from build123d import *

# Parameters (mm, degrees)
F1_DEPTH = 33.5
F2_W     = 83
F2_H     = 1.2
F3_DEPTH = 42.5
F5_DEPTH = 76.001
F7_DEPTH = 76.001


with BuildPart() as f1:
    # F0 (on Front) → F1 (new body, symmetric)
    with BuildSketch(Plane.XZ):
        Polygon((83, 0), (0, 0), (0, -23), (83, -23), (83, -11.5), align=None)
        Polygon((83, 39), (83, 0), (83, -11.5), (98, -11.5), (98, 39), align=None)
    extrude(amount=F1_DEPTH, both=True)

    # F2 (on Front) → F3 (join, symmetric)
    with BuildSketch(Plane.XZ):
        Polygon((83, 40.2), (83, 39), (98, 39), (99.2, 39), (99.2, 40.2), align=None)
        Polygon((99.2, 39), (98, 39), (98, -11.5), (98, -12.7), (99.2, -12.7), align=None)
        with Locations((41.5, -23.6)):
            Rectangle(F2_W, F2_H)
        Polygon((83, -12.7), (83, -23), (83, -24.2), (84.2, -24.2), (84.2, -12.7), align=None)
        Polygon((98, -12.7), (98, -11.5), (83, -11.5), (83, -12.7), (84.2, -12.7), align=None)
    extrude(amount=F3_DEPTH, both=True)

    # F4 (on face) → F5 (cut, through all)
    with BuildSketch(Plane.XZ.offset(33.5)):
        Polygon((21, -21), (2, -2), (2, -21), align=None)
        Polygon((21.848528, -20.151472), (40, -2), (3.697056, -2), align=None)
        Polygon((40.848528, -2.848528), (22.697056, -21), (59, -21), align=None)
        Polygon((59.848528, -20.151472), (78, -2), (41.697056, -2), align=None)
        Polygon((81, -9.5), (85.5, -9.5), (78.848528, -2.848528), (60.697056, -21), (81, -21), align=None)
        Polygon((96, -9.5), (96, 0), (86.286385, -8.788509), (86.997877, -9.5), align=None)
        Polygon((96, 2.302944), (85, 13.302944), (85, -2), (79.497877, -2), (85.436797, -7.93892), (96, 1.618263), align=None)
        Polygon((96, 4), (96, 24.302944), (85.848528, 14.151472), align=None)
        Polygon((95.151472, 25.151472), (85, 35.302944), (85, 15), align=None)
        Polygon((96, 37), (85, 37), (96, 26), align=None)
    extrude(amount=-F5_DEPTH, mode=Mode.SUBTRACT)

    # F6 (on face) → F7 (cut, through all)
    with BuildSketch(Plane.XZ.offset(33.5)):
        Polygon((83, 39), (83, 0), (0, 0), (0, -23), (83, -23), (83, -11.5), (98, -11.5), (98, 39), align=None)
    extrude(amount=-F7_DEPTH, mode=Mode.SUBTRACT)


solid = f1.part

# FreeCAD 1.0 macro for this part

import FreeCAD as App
import Part
import Sketcher
from FreeCAD import Vector
Q = App.Units.Quantity


def add_polygon(sketch, points):
    """Adds a closed chain of lines whose ends are joined by coincident constraints."""
    first, n = sketch.GeometryCount, len(points)
    for a, b in zip(points, points[1:] + points[:1]):
        sketch.addGeometry(Part.LineSegment(App.Vector(*a, 0), App.Vector(*b, 0)), False)
    for i in range(n):
        sketch.addConstraint(Sketcher.Constraint("Coincident", first + i, 2, first + (i + 1) % n, 1))

doc = App.newDocument("Part")
body = doc.addObject("PartDesign::Body", "Body")

# Sketch on XZ plane
sketch1 = body.newObject("Sketcher::SketchObject", "Sketch")
sketch1.AttachmentSupport = (doc.getObject("XZ_Plane"), [""])
sketch1.MapMode = "FlatFace"
add_polygon(sketch1, [(83, 0), (0, 0), (0, -23), (83, -23), (83, -11.5), (98, -11.5), (98, 39), (83, 39)])  # lines 0-7
sketch1.addConstraint(Sketcher.Constraint("Horizontal", 0))
sketch1.addConstraint(Sketcher.Constraint("Vertical", 1))
sketch1.addConstraint(Sketcher.Constraint("Horizontal", 2))
sketch1.addConstraint(Sketcher.Constraint("Vertical", 3))
sketch1.addConstraint(Sketcher.Constraint("Horizontal", 4))
sketch1.addConstraint(Sketcher.Constraint("Vertical", 5))
sketch1.addConstraint(Sketcher.Constraint("Horizontal", 6))
sketch1.addConstraint(Sketcher.Constraint("Vertical", 7))
sketch1.addConstraint(Sketcher.Constraint("Coincident", 0, 2, -1, 1))
sketch1.addConstraint(Sketcher.Constraint("Vertical", 3, 2, 6, 2))
sketch1.addConstraint(Sketcher.Constraint("DistanceX", 0, 2, 0, 1, Q("83 mm")))
sketch1.addConstraint(Sketcher.Constraint("DistanceX", 4, 1, 4, 2, Q("15 mm")))
sketch1.addConstraint(Sketcher.Constraint("DistanceY", 1, 2, 1, 1, Q("23 mm")))
sketch1.addConstraint(Sketcher.Constraint("DistanceY", 7, 2, 7, 1, Q("39 mm")))
sketch1.addConstraint(Sketcher.Constraint("DistanceY", 3, 1, 3, 2, Q("11.5 mm")))
pad1 = body.newObject("PartDesign::Pad", "Pad")
pad1.Profile = sketch1
pad1.Length = 67
pad1.Midplane = True

# Sketch on XZ plane
sketch2 = body.newObject("Sketcher::SketchObject", "Sketch001")
sketch2.AttachmentSupport = (doc.getObject("XZ_Plane"), [""])
sketch2.MapMode = "FlatFace"
add_polygon(sketch2, [(83, 40.2), (83, 39), (98, 39), (98, -11.5), (83, -11.5), (83, -23), (0, -23), (0, -24.2), (84.2, -24.2), (84.2, -12.7), (99.2, -12.7), (99.2, 40.2)])  # lines 0-11
sketch2.addConstraint(Sketcher.Constraint("Vertical", 0))
sketch2.addConstraint(Sketcher.Constraint("Horizontal", 1))
sketch2.addConstraint(Sketcher.Constraint("Vertical", 2))
sketch2.addConstraint(Sketcher.Constraint("Horizontal", 3))
sketch2.addConstraint(Sketcher.Constraint("Vertical", 4))
sketch2.addConstraint(Sketcher.Constraint("Horizontal", 5))
sketch2.addConstraint(Sketcher.Constraint("Vertical", 6))
sketch2.addConstraint(Sketcher.Constraint("Horizontal", 7))
sketch2.addConstraint(Sketcher.Constraint("Vertical", 8))
sketch2.addConstraint(Sketcher.Constraint("Horizontal", 9))
sketch2.addConstraint(Sketcher.Constraint("Vertical", 10))
sketch2.addConstraint(Sketcher.Constraint("Horizontal", 11))
sketch2.addConstraint(Sketcher.Constraint("PointOnObject", 5, 2, -2))
sketch2.addConstraint(Sketcher.Constraint("Vertical", 0, 2, 3, 2))
sketch2.addConstraint(Sketcher.Constraint("Equal", 3, 9))
sketch2.addConstraint(Sketcher.Constraint("Equal", 0, 6))
sketch2.addConstraint(Sketcher.Constraint("Equal", 4, 8))
sketch2.addConstraint(Sketcher.Constraint("DistanceX", 1, 1, 1, 2, Q("15 mm")))
sketch2.addConstraint(Sketcher.Constraint("DistanceX", 5, 2, 5, 1, Q("83 mm")))
sketch2.addConstraint(Sketcher.Constraint("DistanceX", 7, 1, 7, 2, Q("84.2 mm")))
sketch2.addConstraint(Sketcher.Constraint("DistanceY", 0, 2, 0, 1, Q("1.2 mm")))
sketch2.addConstraint(Sketcher.Constraint("DistanceY", 2, 2, 2, 1, Q("50.5 mm")))
sketch2.addConstraint(Sketcher.Constraint("DistanceY", 4, 2, 4, 1, Q("11.5 mm")))
sketch2.addConstraint(Sketcher.Constraint("DistanceY", -1, 1, 0, 2, Q("39 mm")))
pad2 = body.newObject("PartDesign::Pad", "Pad001")
pad2.Profile = sketch2
pad2.Length = 85
pad2.Midplane = True

# Sketch on XZ plane
sketch3 = body.newObject("Sketcher::SketchObject", "Sketch002")
sketch3.AttachmentSupport = (doc.getObject("XZ_Plane"), [""])
sketch3.MapMode = "FlatFace"
sketch3.AttachmentOffset = App.Placement(Vector(0, 0, 33.5), App.Rotation())
add_polygon(sketch3, [(21, -21), (2, -2), (2, -21)])  # lines 0-2
add_polygon(sketch3, [(21.848528, -20.151472), (40, -2), (3.697056, -2)])  # lines 3-5
add_polygon(sketch3, [(40.848528, -2.848528), (22.697056, -21), (59, -21)])  # lines 6-8
add_polygon(sketch3, [(59.848528, -20.151472), (78, -2), (41.697056, -2)])  # lines 9-11
add_polygon(sketch3, [(81, -9.5), (85.5, -9.5), (78.848528, -2.848528), (60.697056, -21), (81, -21)])  # lines 12-16
add_polygon(sketch3, [(96, -9.5), (96, 0), (86.286385, -8.788509), (86.997877, -9.5)])  # lines 17-20
add_polygon(sketch3, [(96, 2.302944), (85, 13.302944), (85, -2), (79.497877, -2), (85.436797, -7.93892), (96, 1.618263)])  # lines 21-26
add_polygon(sketch3, [(96, 4), (96, 24.302944), (85.848528, 14.151472)])  # lines 27-29
add_polygon(sketch3, [(95.151472, 25.151472), (85, 35.302944), (85, 15)])  # lines 30-32
add_polygon(sketch3, [(96, 37), (85, 37), (96, 26)])  # lines 33-35
sketch3.addConstraint(Sketcher.Constraint("Vertical", 1))
sketch3.addConstraint(Sketcher.Constraint("Horizontal", 2))
sketch3.addConstraint(Sketcher.Constraint("Horizontal", 4))
sketch3.addConstraint(Sketcher.Constraint("Horizontal", 7))
sketch3.addConstraint(Sketcher.Constraint("Horizontal", 10))
sketch3.addConstraint(Sketcher.Constraint("Horizontal", 12))
sketch3.addConstraint(Sketcher.Constraint("Horizontal", 15))
sketch3.addConstraint(Sketcher.Constraint("Vertical", 16))
sketch3.addConstraint(Sketcher.Constraint("Vertical", 17))
sketch3.addConstraint(Sketcher.Constraint("Horizontal", 20))
sketch3.addConstraint(Sketcher.Constraint("Vertical", 22))
sketch3.addConstraint(Sketcher.Constraint("Horizontal", 23))
sketch3.addConstraint(Sketcher.Constraint("Vertical", 26))
sketch3.addConstraint(Sketcher.Constraint("Vertical", 27))
sketch3.addConstraint(Sketcher.Constraint("Vertical", 31))
sketch3.addConstraint(Sketcher.Constraint("Horizontal", 33))
sketch3.addConstraint(Sketcher.Constraint("Vertical", 35))
sketch3.addConstraint(Sketcher.Constraint("PointOnObject", 17, 2, -1))
sketch3.addConstraint(Sketcher.Constraint("Perpendicular", 0, 3))
sketch3.addConstraint(Sketcher.Constraint("Perpendicular", 3, 5))
sketch3.addConstraint(Sketcher.Constraint("Perpendicular", 5, 6))
sketch3.addConstraint(Sketcher.Constraint("Perpendicular", 6, 8))
sketch3.addConstraint(Sketcher.Constraint("Perpendicular", 8, 9))
sketch3.addConstraint(Sketcher.Constraint("Perpendicular", 9, 11))
sketch3.addConstraint(Sketcher.Constraint("Parallel", 11, 13))
sketch3.addConstraint(Sketcher.Constraint("Perpendicular", 13, 14))
sketch3.addConstraint(Sketcher.Constraint("Perpendicular", 14, 19))
sketch3.addConstraint(Sketcher.Constraint("Parallel", 19, 21))
sketch3.addConstraint(Sketcher.Constraint("Parallel", 21, 24))
sketch3.addConstraint(Sketcher.Constraint("Parallel", 18, 25))
sketch3.addConstraint(Sketcher.Constraint("Perpendicular", 24, 28))
sketch3.addConstraint(Sketcher.Constraint("Perpendicular", 28, 29))
sketch3.addConstraint(Sketcher.Constraint("Parallel", 29, 30))
sketch3.addConstraint(Sketcher.Constraint("Perpendicular", 30, 32))
sketch3.addConstraint(Sketcher.Constraint("Perpendicular", 32, 34))
sketch3.addConstraint(Sketcher.Constraint("Horizontal", 0, 2, 3, 2))
sketch3.addConstraint(Sketcher.Constraint("Horizontal", 2, 2, 6, 2))
sketch3.addConstraint(Sketcher.Constraint("Horizontal", 4, 2, 9, 2))
sketch3.addConstraint(Sketcher.Constraint("Horizontal", 5, 2, 11, 2))
sketch3.addConstraint(Sketcher.Constraint("Horizontal", 8, 2, 13, 2))
sketch3.addConstraint(Sketcher.Constraint("Horizontal", 7, 2, 14, 2))
sketch3.addConstraint(Sketcher.Constraint("Horizontal", 16, 2, 19, 2))
sketch3.addConstraint(Sketcher.Constraint("Horizontal", 10, 2, 22, 2))
sketch3.addConstraint(Sketcher.Constraint("Vertical", 20, 2, 25, 2))
sketch3.addConstraint(Sketcher.Constraint("Vertical", 26, 2, 27, 2))
sketch3.addConstraint(Sketcher.Constraint("Vertical", 22, 2, 30, 2))
sketch3.addConstraint(Sketcher.Constraint("Vertical", 31, 2, 33, 2))
sketch3.addConstraint(Sketcher.Constraint("Vertical", 29, 2, 34, 2))
sketch3.addConstraint(Sketcher.Constraint("Equal", 4, 7))
sketch3.addConstraint(Sketcher.Constraint("Equal", 2, 1))
sketch3.addConstraint(Sketcher.Constraint("Equal", 15, 27))
sketch3.addConstraint(Sketcher.Constraint("Equal", 27, 31))
sketch3.addConstraint(Sketcher.Constraint("DistanceX", 2, 1, 2, 2, Q("19 mm")))
sketch3.addConstraint(Sketcher.Constraint("DistanceX", 33, 2, 33, 1, Q("11 mm")))
sketch3.addConstraint(Sketcher.Constraint("DistanceX", 12, 1, 12, 2, Q("4.5 mm")))
sketch3.addConstraint(Sketcher.Constraint("DistanceY", 16, 1, 16, 2, Q("11.5 mm")))
sketch3.addConstraint(Sketcher.Constraint("DistanceY", 17, 1, 17, 2, Q("9.5 mm")))
sketch3.addConstraint(Sketcher.Constraint("DistanceX", -1, 1, 0, 2, Q("2 mm")))
sketch3.addConstraint(Sketcher.Constraint("DistanceX", -1, 1, 3, 2, Q("40 mm")))
sketch3.addConstraint(Sketcher.Constraint("DistanceX", -1, 1, 7, 2, Q("59 mm")))
sketch3.addConstraint(Sketcher.Constraint("DistanceX", -1, 1, 9, 2, Q("78 mm")))
sketch3.addConstraint(Sketcher.Constraint("DistanceX", -1, 1, 15, 2, Q("81 mm")))
sketch3.addConstraint(Sketcher.Constraint("DistanceX", -1, 1, 17, 2, Q("96 mm")))
sketch3.addConstraint(Sketcher.Constraint("DistanceY", -1, 1, 29, 2, Q("4 mm")))
sketch3.addConstraint(Sketcher.Constraint("DistanceY", -1, 1, 31, 2, Q("15 mm")))
sketch3.addConstraint(Sketcher.Constraint("DistanceY", -1, 1, 33, 2, Q("37 mm")))
sketch3.addConstraint(Sketcher.Constraint("DistanceY", 21, 2, 27, 2, Q("11 mm")))
sketch3.addConstraint(Sketcher.Constraint("Distance", 13, Q("9.406602 mm")))
sketch3.addConstraint(Sketcher.Constraint("Distance", 19, Q("1.006201 mm")))
sketch3.addConstraint(Sketcher.Constraint("Distance", 24, Q("8.398901 mm")))
sketch3.addConstraint(Sketcher.Constraint("DistanceY", 26, 1, 26, 2, Q("0.684681 mm")))
sketch3.addConstraint(Sketcher.Constraint("Distance", 18, Q("13.099321 mm")))
pocket1 = body.newObject("PartDesign::Pocket", "Pocket")
pocket1.Profile = sketch3
pocket1.Type = "ThroughAll"

# Sketch on XZ plane
sketch4 = body.newObject("Sketcher::SketchObject", "Sketch003")
sketch4.AttachmentSupport = (doc.getObject("XZ_Plane"), [""])
sketch4.MapMode = "FlatFace"
sketch4.AttachmentOffset = App.Placement(Vector(0, 0, 33.5), App.Rotation())
add_polygon(sketch4, [(83, 39), (83, 0), (0, 0), (0, -23), (83, -23), (83, -11.5), (98, -11.5), (98, 39)])  # lines 0-7
sketch4.addConstraint(Sketcher.Constraint("Vertical", 0))
sketch4.addConstraint(Sketcher.Constraint("Horizontal", 1))
sketch4.addConstraint(Sketcher.Constraint("Vertical", 2))
sketch4.addConstraint(Sketcher.Constraint("Horizontal", 3))
sketch4.addConstraint(Sketcher.Constraint("Vertical", 4))
sketch4.addConstraint(Sketcher.Constraint("Horizontal", 5))
sketch4.addConstraint(Sketcher.Constraint("Vertical", 6))
sketch4.addConstraint(Sketcher.Constraint("Horizontal", 7))
sketch4.addConstraint(Sketcher.Constraint("Coincident", 1, 2, -1, 1))
sketch4.addConstraint(Sketcher.Constraint("Vertical", 0, 2, 3, 2))
sketch4.addConstraint(Sketcher.Constraint("DistanceX", 1, 2, 1, 1, Q("83 mm")))
sketch4.addConstraint(Sketcher.Constraint("DistanceX", 5, 1, 5, 2, Q("15 mm")))
sketch4.addConstraint(Sketcher.Constraint("DistanceY", 0, 2, 0, 1, Q("39 mm")))
sketch4.addConstraint(Sketcher.Constraint("DistanceY", 2, 2, 2, 1, Q("23 mm")))
sketch4.addConstraint(Sketcher.Constraint("DistanceY", 4, 1, 4, 2, Q("11.5 mm")))
pocket2 = body.newObject("PartDesign::Pocket", "Pocket001")
pocket2.Profile = sketch4
pocket2.Type = "ThroughAll"

doc.recompute()
